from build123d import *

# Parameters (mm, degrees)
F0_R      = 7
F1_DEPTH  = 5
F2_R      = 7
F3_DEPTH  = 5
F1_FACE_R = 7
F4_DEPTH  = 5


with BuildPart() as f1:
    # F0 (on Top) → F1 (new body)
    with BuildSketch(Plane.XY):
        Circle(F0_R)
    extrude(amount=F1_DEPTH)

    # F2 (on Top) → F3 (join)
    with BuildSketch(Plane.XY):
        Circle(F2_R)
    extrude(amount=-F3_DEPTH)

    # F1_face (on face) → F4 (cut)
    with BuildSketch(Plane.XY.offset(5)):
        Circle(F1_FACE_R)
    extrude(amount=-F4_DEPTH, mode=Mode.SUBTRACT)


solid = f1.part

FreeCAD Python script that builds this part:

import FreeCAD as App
import Part
import Sketcher
from FreeCAD import Vector

doc = App.newDocument("Part")
params = doc.addObject("Spreadsheet::Sheet", "Params")
for row, (alias, value) in enumerate([
    ("sketch1_diameter", "14 mm"),
    ("pad1_length", "5 mm"),
    ("sketch2_diameter", "14 mm"),
    ("pad2_length", "5 mm"),
    ("sketch3_diameter", "14 mm"),
    ("pocket1_length", "5 mm"),
], start=1):
    params.set(f"A{row}", alias)
    params.set(f"B{row}", "=" + value)
    params.setAlias(f"B{row}", alias)

body = doc.addObject("PartDesign::Body", "Body")

# Sketch on XY plane
sketch1 = doc.addObject("Sketcher::SketchObject", "Sketch")
body.addObject(sketch1)
sketch1.AttachmentSupport = (doc.XY_Plane, [""])
sketch1.MapMode = "FlatFace"
sketch1.addGeometry(Part.Circle(Vector(0, 0, 0), Vector(0, 0, 1), 7), False)
sketch1.addConstraint([
    Sketcher.Constraint("Coincident", 0, 3, -1, 1),
    Sketcher.Constraint("Diameter", 0, 14.0),
])
sketch1.setExpression("Constraints[1]", "Params.sketch1_diameter")
pad1 = doc.addObject("PartDesign::Pad", "Pad")
body.addObject(pad1)
pad1.Profile = sketch1
pad1.setExpression("Length", "Params.pad1_length")

# Sketch on XY plane
sketch2 = doc.addObject("Sketcher::SketchObject", "Sketch001")
body.addObject(sketch2)
sketch2.AttachmentSupport = (doc.XY_Plane, [""])
sketch2.MapMode = "FlatFace"
sketch2.addGeometry(Part.Circle(Vector(0, 0, 0), Vector(0, 0, 1), 7), False)
sketch2.addConstraint([
    Sketcher.Constraint("Coincident", 0, 3, -1, 1),
    Sketcher.Constraint("Diameter", 0, 14.0),
])
sketch2.setExpression("Constraints[1]", "Params.sketch2_diameter")
pad2 = doc.addObject("PartDesign::Pad", "Pad001")
body.addObject(pad2)
pad2.Profile = sketch2
pad2.setExpression("Length", "Params.pad2_length")
pad2.Reversed = True

# Sketch on XY plane
sketch3 = doc.addObject("Sketcher::SketchObject", "Sketch002")
body.addObject(sketch3)
sketch3.AttachmentSupport = (doc.XY_Plane, [""])
sketch3.MapMode = "FlatFace"
sketch3.AttachmentOffset = App.Placement(Vector(0, 0, 5), App.Rotation())
sketch3.addGeometry(Part.Circle(Vector(0, 0, 0), Vector(0, 0, 1), 7), False)
sketch3.addConstraint([
    Sketcher.Constraint("Coincident", 0, 3, -1, 1),
    Sketcher.Constraint("Diameter", 0, 14.0),
])
sketch3.setExpression("Constraints[1]", "Params.sketch3_diameter")
pocket1 = doc.addObject("PartDesign::Pocket", "Pocket")
body.addObject(pocket1)
pocket1.Profile = sketch3
pocket1.setExpression("Length", "Params.pocket1_length")

doc.recompute()
